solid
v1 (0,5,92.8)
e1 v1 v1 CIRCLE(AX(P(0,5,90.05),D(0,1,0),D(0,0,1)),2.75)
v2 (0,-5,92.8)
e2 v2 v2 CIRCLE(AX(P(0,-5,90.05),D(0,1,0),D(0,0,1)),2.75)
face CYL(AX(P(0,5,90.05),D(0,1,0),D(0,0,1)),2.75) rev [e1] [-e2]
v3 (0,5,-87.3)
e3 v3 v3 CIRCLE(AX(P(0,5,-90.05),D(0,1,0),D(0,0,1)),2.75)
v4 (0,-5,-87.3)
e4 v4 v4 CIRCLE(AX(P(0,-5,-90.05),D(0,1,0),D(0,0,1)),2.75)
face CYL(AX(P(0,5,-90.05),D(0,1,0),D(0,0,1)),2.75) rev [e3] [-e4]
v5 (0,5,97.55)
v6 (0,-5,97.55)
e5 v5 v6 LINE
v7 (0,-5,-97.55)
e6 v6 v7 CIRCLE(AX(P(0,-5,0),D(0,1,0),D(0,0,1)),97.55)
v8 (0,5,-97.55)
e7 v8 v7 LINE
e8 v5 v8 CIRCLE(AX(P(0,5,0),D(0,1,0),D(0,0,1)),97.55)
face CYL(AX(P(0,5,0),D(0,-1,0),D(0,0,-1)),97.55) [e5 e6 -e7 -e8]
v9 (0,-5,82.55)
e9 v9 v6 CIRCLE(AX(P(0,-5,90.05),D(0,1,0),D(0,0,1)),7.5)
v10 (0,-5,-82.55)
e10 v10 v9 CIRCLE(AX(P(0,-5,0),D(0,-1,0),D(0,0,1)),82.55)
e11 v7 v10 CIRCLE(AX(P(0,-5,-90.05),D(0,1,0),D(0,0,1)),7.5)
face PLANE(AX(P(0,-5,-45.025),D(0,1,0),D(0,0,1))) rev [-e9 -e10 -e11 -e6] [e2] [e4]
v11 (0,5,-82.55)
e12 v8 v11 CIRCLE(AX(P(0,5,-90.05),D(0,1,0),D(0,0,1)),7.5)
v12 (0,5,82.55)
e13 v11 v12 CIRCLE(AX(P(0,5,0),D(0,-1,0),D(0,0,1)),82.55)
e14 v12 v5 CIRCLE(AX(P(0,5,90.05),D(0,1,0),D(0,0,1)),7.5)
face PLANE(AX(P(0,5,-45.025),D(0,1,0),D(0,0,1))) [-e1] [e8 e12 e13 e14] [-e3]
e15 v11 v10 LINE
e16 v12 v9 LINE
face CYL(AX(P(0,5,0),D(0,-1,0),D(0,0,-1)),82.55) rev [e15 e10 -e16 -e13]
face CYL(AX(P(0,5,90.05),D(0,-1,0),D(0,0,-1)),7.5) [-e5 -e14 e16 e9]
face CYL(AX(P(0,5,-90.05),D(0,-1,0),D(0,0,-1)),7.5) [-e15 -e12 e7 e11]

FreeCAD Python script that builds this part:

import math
import FreeCAD as App
import Part
import Sketcher
from FreeCAD import Vector
Q = App.Units.Quantity

doc = App.newDocument("Part")
body = doc.addObject("PartDesign::Body", "Body")

sketch1 = body.newObject("Sketcher::SketchObject", "Sketch")
sketch1.AttachmentSupport = (doc.getObject("XZ_Plane"), [""])
sketch1.MapMode = "FlatFace"
sketch1.addGeometry([
    Part.ArcOfCircle(Part.Circle(Vector(0, 0, 0), Vector(0, 0, 1), 83), math.radians(-90), math.radians(90)),
    Part.ArcOfCircle(Part.Circle(Vector(0, 90, 0), Vector(0, 0, 1), 8), math.radians(90), math.radians(270)),
    Part.ArcOfCircle(Part.Circle(Vector(0, 0, 0), Vector(0, 0, 1), 98), math.radians(-90), math.radians(90)),
    Part.ArcOfCircle(Part.Circle(Vector(0, -90, 0), Vector(0, 0, 1), 8), math.radians(90), math.radians(270)),
], False)
sketch1.addConstraint([
    Sketcher.Constraint("Tangent", 0, 2, 1, 2),
    Sketcher.Constraint("Tangent", 1, 1, 2, 2),
    Sketcher.Constraint("Tangent", 2, 1, 3, 2),
    Sketcher.Constraint("Tangent", 3, 1, 0, 1),
    Sketcher.Constraint("Coincident", 0, 3, -1, 1),
    Sketcher.Constraint("Coincident", 2, 3, -1, 1),
    Sketcher.Constraint("PointOnObject", 1, 3, -2),
    Sketcher.Constraint("PointOnObject", 3, 3, -2),
    Sketcher.Constraint("Radius", 1, Q("7.5 mm")),
    Sketcher.Constraint("Radius", 0, Q("82.55 mm")),
])
pad1 = body.newObject("PartDesign::Pad", "Pad")
pad1.Profile = sketch1
pad1.Length = 10
pad1.Midplane = True

sketch2 = body.newObject("Sketcher::SketchObject", "Sketch001")
sketch2.AttachmentSupport = (doc.getObject("XZ_Plane"), [""])
sketch2.MapMode = "FlatFace"
sketch2.AttachmentOffset = App.Placement(Vector(0, 0, -5), App.Rotation())
sketch2.addGeometry([
    Part.Circle(Vector(0, -90, 0), Vector(0, 0, 1), 2.8),
    Part.Circle(Vector(0, 90, 0), Vector(0, 0, 1), 2.8),
], False)
sketch2.addConstraint([
    Sketcher.Constraint("Equal", 0, 1),
    Sketcher.Constraint("Symmetric", 0, 3, 1, 3, -1, 1),
    Sketcher.Constraint("PointOnObject", 0, 3, -2),
    Sketcher.Constraint("Diameter", 0, Q("5.5 mm")),
    Sketcher.Constraint("DistanceY", 0, 3, 1, 3, Q("180.1 mm")),
])
doc.recompute()
hole = body.newObject("PartDesign::Hole", "Hole")
hole.Profile = sketch2
hole.ThreadType = "None"
hole.Diameter = 5.5
hole.DepthType = "ThroughAll"
hole.Reversed = True

doc.recompute()
